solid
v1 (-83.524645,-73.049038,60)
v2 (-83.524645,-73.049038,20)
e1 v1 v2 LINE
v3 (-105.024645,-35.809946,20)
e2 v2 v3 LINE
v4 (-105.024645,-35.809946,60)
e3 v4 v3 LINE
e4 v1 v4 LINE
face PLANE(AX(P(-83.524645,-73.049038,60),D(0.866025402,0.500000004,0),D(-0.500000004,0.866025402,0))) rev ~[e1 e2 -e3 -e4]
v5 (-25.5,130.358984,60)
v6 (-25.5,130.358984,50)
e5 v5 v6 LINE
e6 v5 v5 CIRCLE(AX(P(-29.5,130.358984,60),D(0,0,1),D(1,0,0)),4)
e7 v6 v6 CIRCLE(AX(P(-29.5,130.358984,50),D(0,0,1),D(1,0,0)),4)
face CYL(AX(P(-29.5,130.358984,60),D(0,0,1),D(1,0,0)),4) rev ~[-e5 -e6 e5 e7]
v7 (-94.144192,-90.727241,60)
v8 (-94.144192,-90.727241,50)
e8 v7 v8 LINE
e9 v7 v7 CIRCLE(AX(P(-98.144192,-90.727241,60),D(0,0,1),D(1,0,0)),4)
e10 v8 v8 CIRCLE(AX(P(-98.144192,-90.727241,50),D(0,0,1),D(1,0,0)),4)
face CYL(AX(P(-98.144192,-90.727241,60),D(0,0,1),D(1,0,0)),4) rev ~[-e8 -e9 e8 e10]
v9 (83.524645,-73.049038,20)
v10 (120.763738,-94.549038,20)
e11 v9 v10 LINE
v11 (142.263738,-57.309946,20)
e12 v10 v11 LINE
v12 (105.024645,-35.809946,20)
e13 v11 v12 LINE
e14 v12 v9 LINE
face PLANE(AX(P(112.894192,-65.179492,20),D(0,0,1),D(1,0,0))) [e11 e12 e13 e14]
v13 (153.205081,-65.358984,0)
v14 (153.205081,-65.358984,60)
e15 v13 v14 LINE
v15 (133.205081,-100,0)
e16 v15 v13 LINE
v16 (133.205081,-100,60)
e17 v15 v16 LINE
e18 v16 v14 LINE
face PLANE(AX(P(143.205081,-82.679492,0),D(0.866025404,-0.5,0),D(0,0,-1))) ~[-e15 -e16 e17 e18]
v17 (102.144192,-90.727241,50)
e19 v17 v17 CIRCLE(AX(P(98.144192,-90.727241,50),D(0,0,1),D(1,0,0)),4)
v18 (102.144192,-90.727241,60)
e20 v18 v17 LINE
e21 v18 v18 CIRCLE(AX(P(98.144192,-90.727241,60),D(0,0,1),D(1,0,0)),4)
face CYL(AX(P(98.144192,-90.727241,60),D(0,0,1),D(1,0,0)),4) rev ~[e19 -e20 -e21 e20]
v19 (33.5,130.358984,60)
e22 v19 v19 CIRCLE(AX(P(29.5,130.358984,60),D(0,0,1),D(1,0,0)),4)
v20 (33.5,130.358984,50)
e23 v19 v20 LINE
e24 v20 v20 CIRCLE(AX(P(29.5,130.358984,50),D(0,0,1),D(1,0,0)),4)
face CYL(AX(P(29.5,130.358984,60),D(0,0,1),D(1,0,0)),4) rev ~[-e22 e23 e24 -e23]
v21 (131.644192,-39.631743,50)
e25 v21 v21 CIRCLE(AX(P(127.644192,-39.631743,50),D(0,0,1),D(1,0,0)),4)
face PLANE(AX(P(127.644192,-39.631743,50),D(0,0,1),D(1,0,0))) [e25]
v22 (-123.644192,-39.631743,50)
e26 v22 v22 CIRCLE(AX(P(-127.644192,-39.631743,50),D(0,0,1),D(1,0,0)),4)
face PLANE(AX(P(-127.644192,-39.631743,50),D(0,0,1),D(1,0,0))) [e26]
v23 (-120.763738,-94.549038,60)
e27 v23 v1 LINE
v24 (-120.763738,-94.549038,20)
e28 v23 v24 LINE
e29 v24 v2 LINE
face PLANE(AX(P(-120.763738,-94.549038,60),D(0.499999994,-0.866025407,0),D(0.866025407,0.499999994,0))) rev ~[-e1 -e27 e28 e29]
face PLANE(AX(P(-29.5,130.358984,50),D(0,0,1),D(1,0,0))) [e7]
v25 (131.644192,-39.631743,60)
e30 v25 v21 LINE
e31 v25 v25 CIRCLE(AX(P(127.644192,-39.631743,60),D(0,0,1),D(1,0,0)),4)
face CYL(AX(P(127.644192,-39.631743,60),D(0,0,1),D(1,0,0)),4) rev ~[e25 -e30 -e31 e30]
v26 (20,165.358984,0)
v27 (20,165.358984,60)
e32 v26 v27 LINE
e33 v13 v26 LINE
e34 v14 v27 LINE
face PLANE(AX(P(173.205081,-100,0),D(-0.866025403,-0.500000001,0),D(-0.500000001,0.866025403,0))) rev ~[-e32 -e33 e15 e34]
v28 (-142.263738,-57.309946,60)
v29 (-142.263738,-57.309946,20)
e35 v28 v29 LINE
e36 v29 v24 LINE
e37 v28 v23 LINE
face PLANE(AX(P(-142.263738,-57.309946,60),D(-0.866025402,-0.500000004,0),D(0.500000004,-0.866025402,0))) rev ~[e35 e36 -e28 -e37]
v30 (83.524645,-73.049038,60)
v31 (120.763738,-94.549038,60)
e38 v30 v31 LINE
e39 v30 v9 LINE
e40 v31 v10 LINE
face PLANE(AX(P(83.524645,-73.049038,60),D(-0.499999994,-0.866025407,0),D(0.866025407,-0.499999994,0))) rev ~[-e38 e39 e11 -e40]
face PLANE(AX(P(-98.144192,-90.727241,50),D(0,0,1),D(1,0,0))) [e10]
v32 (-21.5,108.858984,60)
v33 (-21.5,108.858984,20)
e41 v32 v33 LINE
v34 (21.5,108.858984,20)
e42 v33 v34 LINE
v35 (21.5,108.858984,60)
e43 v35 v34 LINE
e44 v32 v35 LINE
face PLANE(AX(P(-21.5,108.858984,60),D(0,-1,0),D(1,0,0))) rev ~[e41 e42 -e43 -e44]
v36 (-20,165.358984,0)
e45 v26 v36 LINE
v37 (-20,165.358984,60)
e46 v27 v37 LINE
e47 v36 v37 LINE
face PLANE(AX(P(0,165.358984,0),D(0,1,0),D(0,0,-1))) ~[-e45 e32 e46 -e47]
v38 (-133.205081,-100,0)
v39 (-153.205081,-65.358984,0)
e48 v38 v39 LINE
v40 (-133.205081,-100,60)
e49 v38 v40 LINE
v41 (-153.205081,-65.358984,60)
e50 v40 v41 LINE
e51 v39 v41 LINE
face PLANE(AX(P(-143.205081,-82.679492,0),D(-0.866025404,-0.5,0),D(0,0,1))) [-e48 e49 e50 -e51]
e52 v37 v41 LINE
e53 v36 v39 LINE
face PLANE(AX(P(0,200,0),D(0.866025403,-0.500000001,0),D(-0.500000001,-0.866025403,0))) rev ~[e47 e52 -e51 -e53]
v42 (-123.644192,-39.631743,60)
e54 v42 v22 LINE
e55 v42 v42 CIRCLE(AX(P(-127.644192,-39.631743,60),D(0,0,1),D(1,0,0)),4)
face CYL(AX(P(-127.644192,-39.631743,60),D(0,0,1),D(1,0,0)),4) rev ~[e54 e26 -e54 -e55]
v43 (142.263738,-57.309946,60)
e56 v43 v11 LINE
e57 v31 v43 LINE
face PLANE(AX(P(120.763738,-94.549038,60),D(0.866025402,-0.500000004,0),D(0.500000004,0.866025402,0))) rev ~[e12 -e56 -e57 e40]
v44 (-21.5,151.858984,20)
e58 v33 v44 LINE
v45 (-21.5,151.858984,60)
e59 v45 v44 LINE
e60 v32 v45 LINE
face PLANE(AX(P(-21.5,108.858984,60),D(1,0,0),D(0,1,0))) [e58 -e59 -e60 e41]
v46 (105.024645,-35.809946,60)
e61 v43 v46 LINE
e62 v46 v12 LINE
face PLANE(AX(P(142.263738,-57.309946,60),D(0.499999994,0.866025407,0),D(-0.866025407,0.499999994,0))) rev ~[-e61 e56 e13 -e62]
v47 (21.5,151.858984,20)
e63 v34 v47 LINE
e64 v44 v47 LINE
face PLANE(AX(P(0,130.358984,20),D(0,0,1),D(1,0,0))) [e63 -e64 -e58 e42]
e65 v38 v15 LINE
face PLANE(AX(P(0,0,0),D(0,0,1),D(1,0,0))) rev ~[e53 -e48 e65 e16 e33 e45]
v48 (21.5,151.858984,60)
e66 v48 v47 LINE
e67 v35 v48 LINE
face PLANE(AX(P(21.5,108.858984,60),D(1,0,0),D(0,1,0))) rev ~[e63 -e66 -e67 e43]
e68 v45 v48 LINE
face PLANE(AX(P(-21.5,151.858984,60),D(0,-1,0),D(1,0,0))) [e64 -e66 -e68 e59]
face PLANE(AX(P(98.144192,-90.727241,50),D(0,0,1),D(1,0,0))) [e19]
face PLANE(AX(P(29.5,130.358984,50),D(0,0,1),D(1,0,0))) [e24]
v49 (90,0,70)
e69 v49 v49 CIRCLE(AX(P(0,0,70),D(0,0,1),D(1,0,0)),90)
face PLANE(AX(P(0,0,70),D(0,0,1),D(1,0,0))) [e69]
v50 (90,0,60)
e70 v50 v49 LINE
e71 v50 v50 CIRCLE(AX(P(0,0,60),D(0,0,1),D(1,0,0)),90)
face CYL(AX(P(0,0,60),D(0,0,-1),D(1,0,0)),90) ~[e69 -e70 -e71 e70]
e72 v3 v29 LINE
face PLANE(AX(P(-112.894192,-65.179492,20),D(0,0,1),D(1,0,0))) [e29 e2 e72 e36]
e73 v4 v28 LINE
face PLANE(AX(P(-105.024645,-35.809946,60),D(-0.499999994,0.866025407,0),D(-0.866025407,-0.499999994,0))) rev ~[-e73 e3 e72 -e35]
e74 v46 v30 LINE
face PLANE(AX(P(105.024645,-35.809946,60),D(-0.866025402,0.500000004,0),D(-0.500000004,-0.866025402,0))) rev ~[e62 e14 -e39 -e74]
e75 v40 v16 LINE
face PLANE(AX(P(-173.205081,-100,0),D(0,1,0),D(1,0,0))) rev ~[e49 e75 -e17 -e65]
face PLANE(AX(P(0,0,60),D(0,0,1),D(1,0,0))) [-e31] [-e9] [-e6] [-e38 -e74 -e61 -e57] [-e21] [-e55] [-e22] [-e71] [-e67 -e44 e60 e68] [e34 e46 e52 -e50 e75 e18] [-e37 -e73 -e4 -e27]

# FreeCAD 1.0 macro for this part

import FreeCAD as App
import Part
import Sketcher
Q = App.Units.Quantity


def edges_at(feature, points):
    """Names of the edges that pass closest to the given points."""
    edges = feature.Shape.Edges
    near = lambda p: min(range(len(edges)), key=lambda i: edges[i].distToShape(Part.Vertex(*p))[0])
    return sorted({f"Edge{near(p) + 1}" for p in points})


def add_polygon(sketch, points):
    """Adds a closed chain of lines whose ends are joined by coincident constraints."""
    first, n = sketch.GeometryCount, len(points)
    for a, b in zip(points, points[1:] + points[:1]):
        sketch.addGeometry(Part.LineSegment(App.Vector(*a, 0), App.Vector(*b, 0)), False)
    for i in range(n):
        sketch.addConstraint(Sketcher.Constraint("Coincident", first + i, 2, first + (i + 1) % n, 1))

doc = App.newDocument("Part")
params = doc.addObject("Spreadsheet::Sheet", "Params")
for row, (alias, value) in enumerate([
    ("pad1_length", "60 mm"),
    ("chamfer_size", "40 mm"),
    ("sketch2_diameter", "180 mm"),
    ("pad2_length", "10 mm"),
    ("sketch3_width", "43 mm"),
    ("sketch3_length", "43.000001 mm"),
    ("pocket1_length", "40 mm"),
    ("sketch4_diameter", "8 mm"),
    ("pocket2_length", "10 mm"),
], start=1):
    params.set(f"A{row}", alias)
    params.set(f"B{row}", "=" + value)
    params.setAlias(f"B{row}", alias)

body = doc.addObject("PartDesign::Body", "Body")

# Sketch on XY plane
sketch1 = body.newObject("Sketcher::SketchObject", "Sketch")
sketch1.AttachmentSupport = (doc.getObject("XY_Plane"), [""])
sketch1.MapMode = "FlatFace"
add_polygon(sketch1, [(-173, -100), (173, -100), (0, 200)])  # lines 0-2
sketch1.addConstraint(Sketcher.Constraint("Horizontal", 0))
sketch1.addConstraint(Sketcher.Constraint("PointOnObject", 1, 2, -2))
sketch1.addConstraint(Sketcher.Constraint("Equal", 1, 2))
sketch1.addConstraint(Sketcher.Constraint("Angle", 1, Q("120 deg")))
sketch1.addConstraint(Sketcher.Constraint("DistanceY", 0, 2, -1, 1, Q("100 mm")))
sketch1.addConstraint(Sketcher.Constraint("DistanceY", -1, 1, 1, 2, Q("200 mm")))
pad1 = body.newObject("PartDesign::Pad", "Pad")
pad1.Profile = sketch1
pad1.setExpression("Length", "Params.pad1_length")
doc.recompute()

chamfer = body.newObject("PartDesign::Chamfer", "Chamfer")
chamfer.Base = (pad1, edges_at(pad1, [(-173.205, -100, 30), (173.205, -100, 30), (0, 200, 30)]))
chamfer.setExpression("Size", "Params.chamfer_size")

# Sketch on XY plane
sketch2 = body.newObject("Sketcher::SketchObject", "Sketch001")
sketch2.AttachmentSupport = (doc.getObject("XY_Plane"), [""])
sketch2.MapMode = "FlatFace"
sketch2.AttachmentOffset = App.Placement(App.Vector(0, 0, 60), App.Rotation())
sketch2.addGeometry(Part.Circle(App.Vector(0, 0, 0), App.Vector(0, 0, 1), 90), False)
sketch2.addConstraint(Sketcher.Constraint("Coincident", 0, 3, -1, 1))
sketch2.addConstraint(Sketcher.Constraint("Diameter", 0, Q("180 mm")))
sketch2.setExpression("Constraints[1]", "Params.sketch2_diameter")
pad2 = body.newObject("PartDesign::Pad", "Pad001")
pad2.Profile = sketch2
pad2.setExpression("Length", "Params.pad2_length")

# Sketch on XY plane
sketch3 = body.newObject("Sketcher::SketchObject", "Sketch002")
sketch3.AttachmentSupport = (doc.getObject("XY_Plane"), [""])
sketch3.MapMode = "FlatFace"
sketch3.AttachmentOffset = App.Placement(App.Vector(0, 0, 60), App.Rotation())
add_polygon(sketch3, [(-22, 152), (-22, 109), (22, 109), (22, 152)])  # lines 0-3
add_polygon(sketch3, [(-121, -95), (-84, -73), (-105, -36), (-142, -57)])  # lines 4-7
add_polygon(sketch3, [(142, -57), (105, -36), (84, -73), (121, -95)])  # lines 8-11
sketch3.addConstraint(Sketcher.Constraint("Vertical", 0))
sketch3.addConstraint(Sketcher.Constraint("Horizontal", 1))
sketch3.addConstraint(Sketcher.Constraint("Vertical", 2))
sketch3.addConstraint(Sketcher.Constraint("Horizontal", 3))
sketch3.addConstraint(Sketcher.Constraint("Symmetric", 5, 2, 8, 2, -2))
sketch3.addConstraint(Sketcher.Constraint("Symmetric", 4, 2, 9, 2, -2))
sketch3.addConstraint(Sketcher.Constraint("Symmetric", 7, 2, 10, 2, -2))
sketch3.addConstraint(Sketcher.Constraint("Symmetric", 6, 2, 11, 2, -2))
sketch3.addConstraint(Sketcher.Constraint("Perpendicular", 4, 5))
sketch3.addConstraint(Sketcher.Constraint("Perpendicular", 5, 6))
sketch3.addConstraint(Sketcher.Constraint("Perpendicular", 6, 7))
sketch3.addConstraint(Sketcher.Constraint("Equal", 3, 0))
sketch3.addConstraint(Sketcher.Constraint("Equal", 4, 5))
sketch3.addConstraint(Sketcher.Constraint("DistanceX", 1, 1, 1, 2, Q("43 mm")))
sketch3.addConstraint(Sketcher.Constraint("Angle", 4, Q("30 deg")))
sketch3.addConstraint(Sketcher.Constraint("Distance", 4, Q("43.000001 mm")))
sketch3.addConstraint(Sketcher.Constraint("DistanceX", 0, 2, -1, 1, Q("21.5 mm")))
sketch3.addConstraint(Sketcher.Constraint("DistanceX", 7, 2, -1, 1, Q("120.763738 mm")))
sketch3.addConstraint(Sketcher.Constraint("DistanceY", 4, 2, 3, 2, Q("224.908022 mm")))
sketch3.addConstraint(Sketcher.Constraint("DistanceY", -1, 1, 0, 2, Q("108.858984 mm")))
sketch3.setExpression("Constraints[25]", "Params.sketch3_width")
sketch3.setExpression("Constraints[27]", "Params.sketch3_length")
pocket1 = body.newObject("PartDesign::Pocket", "Pocket")
pocket1.Profile = sketch3
pocket1.setExpression("Length", "Params.pocket1_length")

# Sketch on XY plane
sketch4 = body.newObject("Sketcher::SketchObject", "Sketch003")
sketch4.AttachmentSupport = (doc.getObject("XY_Plane"), [""])
sketch4.MapMode = "FlatFace"
sketch4.AttachmentOffset = App.Placement(App.Vector(0, 0, 60), App.Rotation())
sketch4.addGeometry(Part.Circle(App.Vector(-29.5, 130.4, 0), App.Vector(0, 0, 1), 4), False)
sketch4.addGeometry(Part.Circle(App.Vector(29.5, 130.4, 0), App.Vector(0, 0, 1), 4), False)
sketch4.addGeometry(Part.Circle(App.Vector(-98.1, -90.7, 0), App.Vector(0, 0, 1), 4), False)
sketch4.addGeometry(Part.Circle(App.Vector(-127.6, -39.6, 0), App.Vector(0, 0, 1), 4), False)
sketch4.addGeometry(Part.Circle(App.Vector(127.6, -39.6, 0), App.Vector(0, 0, 1), 4), False)
sketch4.addGeometry(Part.Circle(App.Vector(98.1, -90.7, 0), App.Vector(0, 0, 1), 4), False)
sketch4.addConstraint(Sketcher.Constraint("Equal", 0, 1))
sketch4.addConstraint(Sketcher.Constraint("Equal", 1, 2))
sketch4.addConstraint(Sketcher.Constraint("Equal", 2, 3))
sketch4.addConstraint(Sketcher.Constraint("Equal", 3, 4))
sketch4.addConstraint(Sketcher.Constraint("Equal", 4, 5))
sketch4.addConstraint(Sketcher.Constraint("Symmetric", 0, 3, 1, 3, -2))
sketch4.addConstraint(Sketcher.Constraint("Symmetric", 3, 3, 4, 3, -2))
sketch4.addConstraint(Sketcher.Constraint("Symmetric", 2, 3, 5, 3, -2))
sketch4.addConstraint(Sketcher.Constraint("Diameter", 0, Q("8 mm")))
sketch4.addConstraint(Sketcher.Constraint("DistanceX", 0, 3, 1, 3, Q("59 mm")))
sketch4.addConstraint(Sketcher.Constraint("DistanceX", 3, 3, 2, 3, Q("29.5 mm")))
sketch4.addConstraint(Sketcher.Constraint("DistanceY", 2, 3, 3, 3, Q("51.095498 mm")))
sketch4.addConstraint(Sketcher.Constraint("DistanceY", 2, 3, -1, 1, Q("90.727241 mm")))
sketch4.addConstraint(Sketcher.Constraint("DistanceX", 3, 3, 1, 3, Q("157.144192 mm")))
sketch4.addConstraint(Sketcher.Constraint("DistanceY", -1, 1, 0, 3, Q("130.358984 mm")))
sketch4.setExpression("Constraints[8]", "Params.sketch4_diameter")
pocket2 = body.newObject("PartDesign::Pocket", "Pocket001")
pocket2.Profile = sketch4
pocket2.setExpression("Length", "Params.pocket2_length")

doc.recompute()
